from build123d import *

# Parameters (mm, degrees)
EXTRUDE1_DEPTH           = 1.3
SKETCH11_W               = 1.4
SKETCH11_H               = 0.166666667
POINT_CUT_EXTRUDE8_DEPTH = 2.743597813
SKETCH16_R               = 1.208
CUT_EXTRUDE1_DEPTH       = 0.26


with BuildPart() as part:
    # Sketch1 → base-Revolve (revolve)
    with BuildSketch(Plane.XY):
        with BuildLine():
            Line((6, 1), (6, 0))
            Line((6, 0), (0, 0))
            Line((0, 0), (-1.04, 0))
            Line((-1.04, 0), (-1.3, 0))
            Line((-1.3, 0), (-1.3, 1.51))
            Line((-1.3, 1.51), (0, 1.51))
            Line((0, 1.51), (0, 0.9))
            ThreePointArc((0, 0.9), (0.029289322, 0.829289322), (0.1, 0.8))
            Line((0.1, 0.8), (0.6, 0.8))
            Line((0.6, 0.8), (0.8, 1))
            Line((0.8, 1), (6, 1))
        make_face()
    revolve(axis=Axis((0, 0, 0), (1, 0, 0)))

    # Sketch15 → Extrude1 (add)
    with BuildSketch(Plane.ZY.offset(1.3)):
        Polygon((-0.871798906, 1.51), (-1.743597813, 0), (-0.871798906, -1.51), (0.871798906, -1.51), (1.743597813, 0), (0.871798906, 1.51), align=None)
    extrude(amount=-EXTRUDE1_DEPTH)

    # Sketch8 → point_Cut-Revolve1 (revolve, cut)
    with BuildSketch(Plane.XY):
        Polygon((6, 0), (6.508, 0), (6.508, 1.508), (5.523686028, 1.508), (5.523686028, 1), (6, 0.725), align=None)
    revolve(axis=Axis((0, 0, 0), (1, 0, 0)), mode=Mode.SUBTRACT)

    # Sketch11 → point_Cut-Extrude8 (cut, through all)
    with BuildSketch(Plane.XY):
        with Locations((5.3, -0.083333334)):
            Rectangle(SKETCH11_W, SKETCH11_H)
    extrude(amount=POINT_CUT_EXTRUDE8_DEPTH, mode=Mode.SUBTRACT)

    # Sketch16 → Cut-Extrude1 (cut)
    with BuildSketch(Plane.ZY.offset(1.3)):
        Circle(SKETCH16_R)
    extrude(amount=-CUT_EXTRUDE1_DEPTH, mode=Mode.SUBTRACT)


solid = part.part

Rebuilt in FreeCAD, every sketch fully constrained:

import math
import FreeCAD as App
import Part
import Sketcher

V = App.Vector
Q = App.Units.Quantity


def add_polygon(sketch, points):
    """Adds a closed chain of lines whose ends are joined by coincident constraints."""
    first, n = sketch.GeometryCount, len(points)
    for a, b in zip(points, points[1:] + points[:1]):
        sketch.addGeometry(Part.LineSegment(App.Vector(*a, 0), App.Vector(*b, 0)), False)
    for i in range(n):
        sketch.addConstraint(Sketcher.Constraint("Coincident", first + i, 2, first + (i + 1) % n, 1))

doc = App.newDocument("Part")
params = doc.addObject("Spreadsheet::Sheet", "Params")
for row, (alias, value) in enumerate([
    ("sketch1_radius", "0.1 mm"),
    ("sketch1_height", "1 mm"),
    ("sketch1_width", "5.2 mm"),
    ("sketch1_width2", "0.5 mm"),
    ("sketch1_width3", "1.3 mm"),
    ("revolution_angle", "360 deg"),
    ("pad1_length", "1.3 mm"),
    ("sketch3_length", "0.55 mm"),
    ("groove_angle", "360 deg"),
    ("sketch4_width", "1.4 mm"),
    ("pocket2_length", "0.26 mm"),
], start=1):
    params.set(f"A{row}", alias)
    params.set(f"B{row}", "=" + value)
    params.setAlias(f"B{row}", alias)

body = doc.addObject("PartDesign::Body", "Body")

# Sketch on XY plane
sketch1 = body.newObject("Sketcher::SketchObject", "Sketch")
sketch1.AttachmentSupport = (doc.getObject("XY_Plane"), [""])
sketch1.MapMode = "FlatFace"
sketch1.addGeometry([
    Part.LineSegment(V(6, 0, 0), V(6, 1, 0)),  # 0
    Part.LineSegment(V(6, 1, 0), V(0.8, 1, 0)),  # 1
    Part.LineSegment(V(0.8, 1, 0), V(0.6, 0.8, 0)),  # 2
    Part.LineSegment(V(0.6, 0.8, 0), V(0.1, 0.8, 0)),  # 3
    Part.ArcOfCircle(Part.Circle(V(0.1, 0.9, 0), V(0, 0, 1), 0.1), math.radians(180), math.radians(270)),  # 4
    Part.LineSegment(V(0, 0.9, 0), V(0, 1.51, 0)),  # 5
    Part.LineSegment(V(0, 1.51, 0), V(-1.3, 1.51, 0)),  # 6
    Part.LineSegment(V(-1.3, 1.51, 0), V(-1.3, 0, 0)),  # 7
    Part.LineSegment(V(-1.3, 0, 0), V(6, 0, 0)),  # 8
], False)
sketch1.addConstraint([
    Sketcher.Constraint("Coincident", 0, 2, 1, 1),
    Sketcher.Constraint("Coincident", 1, 2, 2, 1),
    Sketcher.Constraint("Coincident", 2, 2, 3, 1),
    Sketcher.Constraint("Tangent", 3, 2, 4, 2),
    Sketcher.Constraint("Tangent", 4, 1, 5, 1),
    Sketcher.Constraint("Coincident", 5, 2, 6, 1),
    Sketcher.Constraint("Coincident", 6, 2, 7, 1),
    Sketcher.Constraint("Coincident", 7, 2, 8, 1),
    Sketcher.Constraint("Coincident", 8, 2, 0, 1),
    Sketcher.Constraint("Vertical", 0),
    Sketcher.Constraint("Horizontal", 1),
    Sketcher.Constraint("Horizontal", 3),
    Sketcher.Constraint("Vertical", 5),
    Sketcher.Constraint("Horizontal", 6),
    Sketcher.Constraint("Vertical", 7),
    Sketcher.Constraint("Horizontal", 8),
    Sketcher.Constraint("PointOnObject", 4, 1, -2),
    Sketcher.Constraint("PointOnObject", 7, 2, -1),
    Sketcher.Constraint("Radius", 4, Q("0.1 mm")),
    Sketcher.Constraint("DistanceY", 0, 1, 0, 2, Q("1 mm")),
    Sketcher.Constraint("Angle", 2, Q("-135 deg")),
    Sketcher.Constraint("DistanceX", 1, 2, 1, 1, Q("5.2 mm")),
    Sketcher.Constraint("DistanceX", 3, 2, 3, 1, Q("0.5 mm")),
    Sketcher.Constraint("DistanceX", 6, 2, 6, 1, Q("1.3 mm")),
    Sketcher.Constraint("DistanceX", 8, 1, 8, 2, Q("7.3 mm")),
    Sketcher.Constraint("DistanceY", 5, 1, 5, 2, Q("0.61 mm")),
])
sketch1.setExpression("Constraints[18]", "Params.sketch1_radius")
sketch1.setExpression("Constraints[19]", "Params.sketch1_height")
sketch1.setExpression("Constraints[21]", "Params.sketch1_width")
sketch1.setExpression("Constraints[22]", "Params.sketch1_width2")
sketch1.setExpression("Constraints[23]", "Params.sketch1_width3")
revolution = body.newObject("PartDesign::Revolution", "Revolution")
revolution.Profile = sketch1
revolution.ReferenceAxis = (sketch1, ["H_Axis"])
revolution.setExpression("Angle", "Params.revolution_angle")

# Sketch on YZ plane
sketch2 = body.newObject("Sketcher::SketchObject", "Sketch001")
sketch2.AttachmentSupport = (doc.getObject("YZ_Plane"), [""])
sketch2.MapMode = "FlatFace"
sketch2.AttachmentOffset = App.Placement(V(0, 0, -1.3), App.Rotation())
add_polygon(sketch2, [(1.51, -0.871799), (0, -1.743598), (-1.51, -0.871799), (-1.51, 0.871799), (0, 1.743598), (1.51, 0.871799)])  # lines 0-5
sketch2.addConstraint([
    Sketcher.Constraint("Vertical", 2),
    Sketcher.Constraint("Vertical", 5),
    Sketcher.Constraint("Symmetric", 0, 2, 3, 2, -1, 1),
    Sketcher.Constraint("Symmetric", 1, 2, 4, 2, -1, 1),
    Sketcher.Constraint("PointOnObject", 0, 2, -2),
    Sketcher.Constraint("Parallel", 0, 3),
    Sketcher.Constraint("Horizontal", 2, 2, 4, 2),
    Sketcher.Constraint("Angle", 0, Q("-150 deg")),
    Sketcher.Constraint("DistanceX", 1, 2, -1, 1, Q("1.51 mm")),
    Sketcher.Constraint("DistanceY", 1, 2, -1, 1, Q("0.871799 mm")),
])
pad1 = body.newObject("PartDesign::Pad", "Pad")
pad1.Profile = sketch2
pad1.setExpression("Length", "Params.pad1_length")

# Sketch on XY plane
sketch3 = body.newObject("Sketcher::SketchObject", "Sketch002")
sketch3.AttachmentSupport = (doc.getObject("XY_Plane"), [""])
sketch3.MapMode = "FlatFace"
add_polygon(sketch3, [(6, 0), (6.508, 0), (6.508, 1.508), (5.523686, 1.508), (5.523686, 1), (6, 0.725)])  # lines 0-5
sketch3.addConstraint([
    Sketcher.Constraint("Horizontal", 0),
    Sketcher.Constraint("Vertical", 1),
    Sketcher.Constraint("Horizontal", 2),
    Sketcher.Constraint("Vertical", 3),
    Sketcher.Constraint("Vertical", 5),
    Sketcher.Constraint("PointOnObject", 0, 2, -1),
    Sketcher.Constraint("Equal", 0, 3),
    Sketcher.Constraint("Angle", 4, Q("-30 deg")),
    Sketcher.Constraint("DistanceY", -1, 1, 3, 2, Q("1 mm")),
    Sketcher.Constraint("DistanceX", -1, 1, 4, 2, Q("6 mm")),
    Sketcher.Constraint("Distance", 4, Q("0.55 mm")),
    Sketcher.Constraint("DistanceX", 0, 1, 0, 2, Q("0.508 mm")),
])
sketch3.setExpression("Constraints[16]", "Params.sketch3_length")
groove = body.newObject("PartDesign::Groove", "Groove")
groove.Profile = sketch3
groove.ReferenceAxis = (sketch3, ["H_Axis"])
groove.setExpression("Angle", "Params.groove_angle")

# Sketch on XY plane
sketch4 = body.newObject("Sketcher::SketchObject", "Sketch003")
sketch4.AttachmentSupport = (doc.getObject("XY_Plane"), [""])
sketch4.MapMode = "FlatFace"
add_polygon(sketch4, [(4.6, 0), (4.6, -0.166667), (6, -0.166667), (6, 0)])  # lines 0-3
sketch4.addConstraint([
    Sketcher.Constraint("Vertical", 0),
    Sketcher.Constraint("Horizontal", 1),
    Sketcher.Constraint("Vertical", 2),
    Sketcher.Constraint("Horizontal", 3),
    Sketcher.Constraint("PointOnObject", 2, 2, -1),
    Sketcher.Constraint("DistanceX", 1, 1, 1, 2, Q("1.4 mm")),
    Sketcher.Constraint("DistanceX", -1, 1, 1, 2, Q("6 mm")),
    Sketcher.Constraint("DistanceY", 0, 2, 0, 1, Q("0.166667 mm")),
])
sketch4.setExpression("Constraints[9]", "Params.sketch4_width")
pocket1 = body.newObject("PartDesign::Pocket", "Pocket")
pocket1.Profile = sketch4
pocket1.Type = "ThroughAll"
pocket1.Reversed = True

# Sketch on YZ plane
sketch5 = body.newObject("Sketcher::SketchObject", "Sketch004")
sketch5.AttachmentSupport = (doc.getObject("YZ_Plane"), [""])
sketch5.MapMode = "FlatFace"
sketch5.AttachmentOffset = App.Placement(V(0, 0, -1.3), App.Rotation())
sketch5.addGeometry(Part.Circle(V(0, 0, 0), V(0, 0, 1), 1.208), False)
sketch5.addConstraint([
    Sketcher.Constraint("Coincident", 0, 3, -1, 1),
    Sketcher.Constraint("Diameter", 0, Q("2.416 mm")),
])
pocket2 = body.newObject("PartDesign::Pocket", "Pocket001")
pocket2.Profile = sketch5
pocket2.setExpression("Length", "Params.pocket2_length")
pocket2.Reversed = True

doc.recompute()
